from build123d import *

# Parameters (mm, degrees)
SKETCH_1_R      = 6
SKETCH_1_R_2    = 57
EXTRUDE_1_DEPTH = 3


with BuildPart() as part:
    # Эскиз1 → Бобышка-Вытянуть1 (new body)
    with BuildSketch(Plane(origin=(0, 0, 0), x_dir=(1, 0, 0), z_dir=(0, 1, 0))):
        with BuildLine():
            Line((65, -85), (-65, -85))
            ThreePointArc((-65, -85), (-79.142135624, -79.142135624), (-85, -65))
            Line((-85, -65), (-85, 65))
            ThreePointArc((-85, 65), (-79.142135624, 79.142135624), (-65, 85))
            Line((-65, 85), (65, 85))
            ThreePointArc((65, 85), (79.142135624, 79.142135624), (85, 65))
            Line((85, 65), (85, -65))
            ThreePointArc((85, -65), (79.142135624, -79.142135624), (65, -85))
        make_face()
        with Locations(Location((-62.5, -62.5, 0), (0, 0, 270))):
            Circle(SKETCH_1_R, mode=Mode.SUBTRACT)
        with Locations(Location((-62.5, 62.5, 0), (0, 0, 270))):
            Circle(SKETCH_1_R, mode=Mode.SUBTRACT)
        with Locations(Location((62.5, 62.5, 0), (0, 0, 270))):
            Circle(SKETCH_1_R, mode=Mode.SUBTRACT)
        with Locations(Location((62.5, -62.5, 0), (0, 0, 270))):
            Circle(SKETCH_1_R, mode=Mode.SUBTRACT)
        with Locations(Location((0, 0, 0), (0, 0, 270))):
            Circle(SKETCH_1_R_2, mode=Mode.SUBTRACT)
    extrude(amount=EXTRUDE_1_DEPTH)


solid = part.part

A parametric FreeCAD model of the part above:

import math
import FreeCAD as App
import Part
import Sketcher
from FreeCAD import Vector
Q = App.Units.Quantity

doc = App.newDocument("Part")
body = doc.addObject("PartDesign::Body", "Body")

# Sketch on XZ plane
sketch1 = doc.addObject("Sketcher::SketchObject", "Sketch")
body.addObject(sketch1)
sketch1.AttachmentSupport = (doc.XZ_Plane, [""])
sketch1.MapMode = "FlatFace"
sketch1.addGeometry(Part.LineSegment(Vector(-65, 85, 0), Vector(65, 85, 0)), False)
sketch1.addGeometry(Part.ArcOfCircle(Part.Circle(Vector(65, 65, 0), Vector(0, 0, 1), 20), math.radians(0), math.radians(90)), False)
sketch1.addGeometry(Part.LineSegment(Vector(85, 65, 0), Vector(85, -65, 0)), False)
sketch1.addGeometry(Part.ArcOfCircle(Part.Circle(Vector(65, -65, 0), Vector(0, 0, 1), 20), math.radians(-90), math.radians(0)), False)
sketch1.addGeometry(Part.LineSegment(Vector(65, -85, 0), Vector(-65, -85, 0)), False)
sketch1.addGeometry(Part.ArcOfCircle(Part.Circle(Vector(-65, -65, 0), Vector(0, 0, 1), 20), math.radians(180), math.radians(270)), False)
sketch1.addGeometry(Part.LineSegment(Vector(-85, -65, 0), Vector(-85, 65, 0)), False)
sketch1.addGeometry(Part.ArcOfCircle(Part.Circle(Vector(-65, 65, 0), Vector(0, 0, 1), 20), math.radians(90), math.radians(180)), False)
sketch1.addGeometry(Part.Circle(Vector(62, 62, 0), Vector(0, 0, 1), 6), False)
sketch1.addGeometry(Part.Circle(Vector(-62, 62, 0), Vector(0, 0, 1), 6), False)
sketch1.addGeometry(Part.Circle(Vector(62, -62, 0), Vector(0, 0, 1), 6), False)
sketch1.addGeometry(Part.Circle(Vector(0, 0, 0), Vector(0, 0, 1), 57), False)
sketch1.addGeometry(Part.Circle(Vector(-62, -62, 0), Vector(0, 0, 1), 6), False)
sketch1.addConstraint(Sketcher.Constraint("Tangent", 0, 2, 1, 2))
sketch1.addConstraint(Sketcher.Constraint("Tangent", 1, 1, 2, 1))
sketch1.addConstraint(Sketcher.Constraint("Tangent", 2, 2, 3, 2))
sketch1.addConstraint(Sketcher.Constraint("Tangent", 3, 1, 4, 1))
sketch1.addConstraint(Sketcher.Constraint("Tangent", 4, 2, 5, 2))
sketch1.addConstraint(Sketcher.Constraint("Tangent", 5, 1, 6, 1))
sketch1.addConstraint(Sketcher.Constraint("Tangent", 6, 2, 7, 2))
sketch1.addConstraint(Sketcher.Constraint("Tangent", 7, 1, 0, 1))
sketch1.addConstraint(Sketcher.Constraint("Horizontal", 0))
sketch1.addConstraint(Sketcher.Constraint("Vertical", 2))
sketch1.addConstraint(Sketcher.Constraint("Horizontal", 4))
sketch1.addConstraint(Sketcher.Constraint("Vertical", 6))
sketch1.addConstraint(Sketcher.Constraint("Coincident", 11, 3, -1, 1))
sketch1.addConstraint(Sketcher.Constraint("Equal", 1, 3))
sketch1.addConstraint(Sketcher.Constraint("Equal", 3, 5))
sketch1.addConstraint(Sketcher.Constraint("Equal", 5, 7))
sketch1.addConstraint(Sketcher.Constraint("Equal", 8, 9))
sketch1.addConstraint(Sketcher.Constraint("Equal", 9, 10))
sketch1.addConstraint(Sketcher.Constraint("Equal", 10, 12))
sketch1.addConstraint(Sketcher.Constraint("Symmetric", 1, 3, 5, 3, -1, 1))
sketch1.addConstraint(Sketcher.Constraint("Symmetric", 9, 3, 10, 3, -1, 1))
sketch1.addConstraint(Sketcher.Constraint("Symmetric", 8, 3, 12, 3, -1, 1))
sketch1.addConstraint(Sketcher.Constraint("Symmetric", 8, 3, 9, 3, -2))
sketch1.addConstraint(Sketcher.Constraint("Equal", 4, 2))
sketch1.addConstraint(Sketcher.Constraint("Diameter", 8, Q("12 mm")))
sketch1.addConstraint(Sketcher.Constraint("Diameter", 11, Q("114 mm")))
sketch1.addConstraint(Sketcher.Constraint("Radius", 1, Q("20 mm")))
sketch1.addConstraint(Sketcher.Constraint("DistanceX", 0, 1, 0, 2, Q("130 mm")))
sketch1.addConstraint(Sketcher.Constraint("DistanceX", 9, 3, 8, 3, Q("125 mm")))
sketch1.addConstraint(Sketcher.Constraint("DistanceY", 10, 3, 8, 3, Q("125 mm")))
pad1 = doc.addObject("PartDesign::Pad", "Pad")
body.addObject(pad1)
pad1.Profile = sketch1
pad1.Length = 3
pad1.Reversed = True

doc.recompute()
